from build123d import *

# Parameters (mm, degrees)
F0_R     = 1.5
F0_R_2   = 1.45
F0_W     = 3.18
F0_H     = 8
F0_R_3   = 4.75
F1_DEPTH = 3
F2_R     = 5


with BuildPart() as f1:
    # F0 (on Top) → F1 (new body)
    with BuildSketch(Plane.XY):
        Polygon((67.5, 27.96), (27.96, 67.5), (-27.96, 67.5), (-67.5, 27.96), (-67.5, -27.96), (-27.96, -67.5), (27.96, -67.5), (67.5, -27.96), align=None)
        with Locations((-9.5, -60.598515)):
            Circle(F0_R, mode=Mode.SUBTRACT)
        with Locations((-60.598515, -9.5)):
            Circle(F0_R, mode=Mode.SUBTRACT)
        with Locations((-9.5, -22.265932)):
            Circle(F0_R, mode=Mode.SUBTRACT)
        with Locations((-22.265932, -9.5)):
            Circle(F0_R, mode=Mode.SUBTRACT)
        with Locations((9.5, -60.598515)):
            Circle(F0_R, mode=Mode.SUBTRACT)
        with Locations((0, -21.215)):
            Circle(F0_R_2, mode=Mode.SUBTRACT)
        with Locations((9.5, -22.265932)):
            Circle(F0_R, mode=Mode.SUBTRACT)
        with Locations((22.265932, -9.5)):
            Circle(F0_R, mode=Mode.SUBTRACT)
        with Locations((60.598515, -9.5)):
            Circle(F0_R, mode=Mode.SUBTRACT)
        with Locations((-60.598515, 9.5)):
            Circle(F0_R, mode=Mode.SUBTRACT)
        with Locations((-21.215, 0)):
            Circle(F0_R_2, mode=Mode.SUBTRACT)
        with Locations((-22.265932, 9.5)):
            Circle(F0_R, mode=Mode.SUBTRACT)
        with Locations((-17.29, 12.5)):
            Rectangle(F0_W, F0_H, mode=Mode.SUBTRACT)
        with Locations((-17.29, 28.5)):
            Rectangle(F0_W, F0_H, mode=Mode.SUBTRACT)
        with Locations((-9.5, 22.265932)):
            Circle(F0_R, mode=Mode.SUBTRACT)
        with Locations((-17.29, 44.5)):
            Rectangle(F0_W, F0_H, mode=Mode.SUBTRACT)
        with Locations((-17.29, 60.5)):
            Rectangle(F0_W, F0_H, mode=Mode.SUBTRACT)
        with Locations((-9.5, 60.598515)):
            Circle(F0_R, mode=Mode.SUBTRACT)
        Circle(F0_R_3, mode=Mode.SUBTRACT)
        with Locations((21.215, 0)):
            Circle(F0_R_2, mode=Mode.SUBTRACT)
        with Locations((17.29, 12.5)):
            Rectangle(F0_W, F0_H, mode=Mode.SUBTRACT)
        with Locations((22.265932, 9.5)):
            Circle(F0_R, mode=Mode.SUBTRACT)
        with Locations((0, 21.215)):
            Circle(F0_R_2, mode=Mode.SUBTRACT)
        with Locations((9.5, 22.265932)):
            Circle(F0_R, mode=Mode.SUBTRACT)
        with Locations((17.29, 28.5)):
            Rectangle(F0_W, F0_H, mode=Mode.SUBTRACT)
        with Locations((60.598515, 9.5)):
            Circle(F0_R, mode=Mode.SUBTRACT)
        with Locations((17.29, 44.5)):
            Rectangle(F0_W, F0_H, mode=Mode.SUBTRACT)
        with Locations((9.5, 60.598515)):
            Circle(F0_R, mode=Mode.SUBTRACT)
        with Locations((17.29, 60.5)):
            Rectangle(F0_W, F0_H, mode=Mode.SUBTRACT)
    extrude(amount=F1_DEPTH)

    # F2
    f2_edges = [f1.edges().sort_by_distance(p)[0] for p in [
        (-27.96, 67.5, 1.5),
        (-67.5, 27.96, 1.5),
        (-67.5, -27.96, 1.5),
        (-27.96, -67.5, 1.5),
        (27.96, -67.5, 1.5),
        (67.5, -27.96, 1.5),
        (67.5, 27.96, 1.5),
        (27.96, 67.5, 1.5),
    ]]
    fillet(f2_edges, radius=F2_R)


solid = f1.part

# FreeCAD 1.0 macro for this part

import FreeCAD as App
import Part
import Sketcher

V = App.Vector


def edges_at(feature, points):
    """Names of the edges that pass closest to the given points."""
    edges = feature.Shape.Edges
    near = lambda p: min(range(len(edges)), key=lambda i: edges[i].distToShape(Part.Vertex(*p))[0])
    return sorted({f"Edge{near(p) + 1}" for p in points})


def add_polygon(sketch, points):
    """Adds a closed chain of lines whose ends are joined by coincident constraints."""
    first, n = sketch.GeometryCount, len(points)
    for a, b in zip(points, points[1:] + points[:1]):
        sketch.addGeometry(Part.LineSegment(App.Vector(*a, 0), App.Vector(*b, 0)), False)
    for i in range(n):
        sketch.addConstraint(Sketcher.Constraint("Coincident", first + i, 2, first + (i + 1) % n, 1))

doc = App.newDocument("Part")
body = doc.addObject("PartDesign::Body", "Body")

sketch1 = body.newObject("Sketcher::SketchObject", "Sketch")
sketch1.AttachmentSupport = (doc.getObject("XY_Plane"), [""])
sketch1.MapMode = "FlatFace"
add_polygon(sketch1, [(67.5, 27.96), (27.96, 67.5), (-27.96, 67.5), (-67.5, 27.96), (-67.5, -27.96), (-27.96, -67.5), (27.96, -67.5), (67.5, -27.96)])
sketch1.addGeometry(Part.Circle(V(-9.5, -60.598515, 0), V(0, 0, 1), 1.5), False)
sketch1.addGeometry(Part.Circle(V(-60.598515, -9.5, 0), V(0, 0, 1), 1.5), False)
sketch1.addGeometry(Part.Circle(V(-9.5, -22.265932, 0), V(0, 0, 1), 1.5), False)
sketch1.addGeometry(Part.Circle(V(-22.265932, -9.5, 0), V(0, 0, 1), 1.5), False)
sketch1.addGeometry(Part.Circle(V(-21.215, 0, 0), V(0, 0, 1), 1.45), False)
sketch1.addGeometry(Part.Circle(V(9.5, -60.598515, 0), V(0, 0, 1), 1.5), False)
sketch1.addGeometry(Part.Circle(V(0, -21.215, 0), V(0, 0, 1), 1.45), False)
sketch1.addGeometry(Part.Circle(V(9.5, -22.265932, 0), V(0, 0, 1), 1.5), False)
sketch1.addGeometry(Part.Circle(V(0, 0, 0), V(0, 0, 1), 4.75), False)
sketch1.addGeometry(Part.Circle(V(22.265932, -9.5, 0), V(0, 0, 1), 1.5), False)
sketch1.addGeometry(Part.Circle(V(21.215, 0, 0), V(0, 0, 1), 1.45), False)
sketch1.addGeometry(Part.Circle(V(60.598515, -9.5, 0), V(0, 0, 1), 1.5), False)
sketch1.addGeometry(Part.Circle(V(-60.598515, 9.5, 0), V(0, 0, 1), 1.5), False)
sketch1.addGeometry(Part.Circle(V(-22.265932, 9.5, 0), V(0, 0, 1), 1.5), False)
add_polygon(sketch1, [(-15.7, 8.5), (-18.88, 8.5), (-18.88, 16.5), (-15.7, 16.5)])
add_polygon(sketch1, [(-15.7, 24.5), (-18.88, 24.5), (-18.88, 32.5), (-15.7, 32.5)])
sketch1.addGeometry(Part.Circle(V(-9.5, 22.265932, 0), V(0, 0, 1), 1.5), False)
add_polygon(sketch1, [(-15.7, 40.5), (-18.88, 40.5), (-18.88, 48.5), (-15.7, 48.5)])
add_polygon(sketch1, [(-15.7, 56.5), (-18.88, 56.5), (-18.88, 64.5), (-15.7, 64.5)])
sketch1.addGeometry(Part.Circle(V(-9.5, 60.598515, 0), V(0, 0, 1), 1.5), False)
add_polygon(sketch1, [(18.88, 8.5), (15.7, 8.5), (15.7, 16.5), (18.88, 16.5)])
sketch1.addGeometry(Part.Circle(V(22.265932, 9.5, 0), V(0, 0, 1), 1.5), False)
sketch1.addGeometry(Part.Circle(V(0, 21.215, 0), V(0, 0, 1), 1.45), False)
sketch1.addGeometry(Part.Circle(V(9.5, 22.265932, 0), V(0, 0, 1), 1.5), False)
add_polygon(sketch1, [(18.88, 24.5), (15.7, 24.5), (15.7, 32.5), (18.88, 32.5)])
sketch1.addGeometry(Part.Circle(V(60.598515, 9.5, 0), V(0, 0, 1), 1.5), False)
add_polygon(sketch1, [(18.88, 40.5), (15.7, 40.5), (15.7, 48.5), (18.88, 48.5)])
sketch1.addGeometry(Part.Circle(V(9.5, 60.598515, 0), V(0, 0, 1), 1.5), False)
add_polygon(sketch1, [(18.88, 56.5), (15.7, 56.5), (15.7, 64.5), (18.88, 64.5)])
sketch1.addConstraint([
    Sketcher.Constraint("Horizontal", 1),
    Sketcher.Constraint("Vertical", 3),
    Sketcher.Constraint("Horizontal", 5),
    Sketcher.Constraint("Vertical", 7),
    Sketcher.Constraint("Horizontal", 22),
    Sketcher.Constraint("Vertical", 23),
    Sketcher.Constraint("Horizontal", 24),
    Sketcher.Constraint("Vertical", 25),
    Sketcher.Constraint("Horizontal", 26),
    Sketcher.Constraint("Vertical", 27),
    Sketcher.Constraint("Horizontal", 28),
    Sketcher.Constraint("Vertical", 29),
    Sketcher.Constraint("Horizontal", 31),
    Sketcher.Constraint("Vertical", 32),
    Sketcher.Constraint("Horizontal", 33),
    Sketcher.Constraint("Vertical", 34),
    Sketcher.Constraint("Horizontal", 35),
    Sketcher.Constraint("Vertical", 36),
    Sketcher.Constraint("Horizontal", 37),
    Sketcher.Constraint("Vertical", 38),
    Sketcher.Constraint("Horizontal", 40),
    Sketcher.Constraint("Vertical", 41),
    Sketcher.Constraint("Horizontal", 42),
    Sketcher.Constraint("Vertical", 43),
    Sketcher.Constraint("Horizontal", 47),
    Sketcher.Constraint("Vertical", 48),
    Sketcher.Constraint("Horizontal", 49),
    Sketcher.Constraint("Vertical", 50),
    Sketcher.Constraint("Horizontal", 52),
    Sketcher.Constraint("Vertical", 53),
    Sketcher.Constraint("Horizontal", 54),
    Sketcher.Constraint("Vertical", 55),
    Sketcher.Constraint("Horizontal", 57),
    Sketcher.Constraint("Vertical", 58),
    Sketcher.Constraint("Horizontal", 59),
    Sketcher.Constraint("Vertical", 60),
    Sketcher.Constraint("Coincident", 16, 3, -1, 1),
    Sketcher.Constraint("Equal", 8, 9),
    Sketcher.Constraint("Equal", 9, 10),
    Sketcher.Constraint("Equal", 10, 11),
    Sketcher.Constraint("Equal", 11, 13),
    Sketcher.Constraint("Equal", 12, 14),
    Sketcher.Constraint("Equal", 13, 15),
    Sketcher.Constraint("Equal", 15, 17),
    Sketcher.Constraint("Equal", 14, 18),
    Sketcher.Constraint("Equal", 17, 19),
    Sketcher.Constraint("Equal", 19, 20),
    Sketcher.Constraint("Equal", 20, 21),
    Sketcher.Constraint("Equal", 21, 30),
    Sketcher.Constraint("Equal", 30, 39),
    Sketcher.Constraint("Equal", 39, 44),
    Sketcher.Constraint("Equal", 18, 45),
    Sketcher.Constraint("Equal", 44, 46),
    Sketcher.Constraint("Equal", 46, 51),
    Sketcher.Constraint("Equal", 51, 56),
    Sketcher.Constraint("Symmetric", 12, 3, 18, 3, -1, 1),
    Sketcher.Constraint("Symmetric", 19, 3, 20, 3, -1, 1),
    Sketcher.Constraint("Symmetric", 17, 3, 21, 3, -1, 1),
    Sketcher.Constraint("Symmetric", 15, 3, 30, 3, -1, 1),
    Sketcher.Constraint("Symmetric", 13, 3, 39, 3, -1, 1),
    Sketcher.Constraint("Symmetric", 11, 3, 44, 3, -1, 1),
    Sketcher.Constraint("Symmetric", 14, 3, 45, 3, -1, 1),
    Sketcher.Constraint("Symmetric", 10, 3, 46, 3, -1, 1),
    Sketcher.Constraint("Symmetric", 9, 3, 51, 3, -1, 1),
    Sketcher.Constraint("Symmetric", 8, 3, 56, 3, -1, 1),
    Sketcher.Constraint("Symmetric", 0, 2, 4, 2, -1, 1),
    Sketcher.Constraint("Symmetric", 2, 2, 6, 2, -1, 1),
    Sketcher.Constraint("Symmetric", 8, 3, 13, 3, -2),
    Sketcher.Constraint("Symmetric", 10, 3, 15, 3, -2),
    Sketcher.Constraint("Symmetric", 11, 3, 17, 3, -2),
    Sketcher.Constraint("Symmetric", 9, 3, 19, 3, -2),
    Sketcher.Constraint("Symmetric", 25, 2, 40, 2, -2),
    Sketcher.Constraint("Symmetric", 23, 2, 42, 2, -2),
    Sketcher.Constraint("Symmetric", 29, 2, 47, 2, -2),
    Sketcher.Constraint("Symmetric", 27, 2, 49, 2, -2),
    Sketcher.Constraint("Symmetric", 34, 2, 52, 2, -2),
    Sketcher.Constraint("Symmetric", 32, 2, 54, 2, -2),
    Sketcher.Constraint("Symmetric", 38, 2, 57, 2, -2),
    Sketcher.Constraint("Symmetric", 36, 2, 59, 2, -2),
    Sketcher.Constraint("PointOnObject", 12, 3, -1),
    Sketcher.Constraint("PointOnObject", 14, 3, -2),
    Sketcher.Constraint("Perpendicular", 0, 2),
    Sketcher.Constraint("Perpendicular", 2, 4),
    Sketcher.Constraint("Perpendicular", 4, 6),
    Sketcher.Constraint("Horizontal", 9, 3, 11, 3),
    Sketcher.Constraint("Horizontal", 3, 2, 6, 2),
    Sketcher.Constraint("Vertical", 8, 3, 10, 3),
    Sketcher.Constraint("Vertical", 1, 2, 4, 2),
    Sketcher.Constraint("Vertical", 23, 2, 26, 2),
    Sketcher.Constraint("Vertical", 25, 2, 28, 2),
    Sketcher.Constraint("Vertical", 27, 2, 31, 2),
    Sketcher.Constraint("Vertical", 29, 2, 33, 2),
    Sketcher.Constraint("Vertical", 32, 2, 35, 2),
    Sketcher.Constraint("Vertical", 34, 2, 37, 2),
    Sketcher.Constraint("Equal", 5, 3),
    Sketcher.Constraint("Equal", 25, 27),
    Sketcher.Constraint("Equal", 29, 32),
    Sketcher.Constraint("Equal", 34, 36),
    Sketcher.Constraint("Diameter", 8, 3.0),
    Sketcher.Constraint("Diameter", 12, 2.9),
    Sketcher.Constraint("Diameter", 16, 9.5),
    Sketcher.Constraint("DistanceY", 23, 1, 23, 2, 8.0),
    Sketcher.Constraint("DistanceX", 1, 2, 1, 1, 55.92),
    Sketcher.Constraint("DistanceX", 22, 2, 22, 1, 3.18),
    Sketcher.Constraint("DistanceX", 8, 3, -1, 1, 9.5),
    Sketcher.Constraint("DistanceY", 9, 3, -1, 1, 9.5),
    Sketcher.Constraint("DistanceY", -1, 1, 0, 2, 67.5),
    Sketcher.Constraint("DistanceY", -1, 1, 22, 2, 8.5),
    Sketcher.Constraint("DistanceX", 24, 2, -1, 1, 15.7),
    Sketcher.Constraint("DistanceY", -1, 1, 26, 2, 24.5),
    Sketcher.Constraint("DistanceY", -1, 1, 31, 2, 40.5),
    Sketcher.Constraint("DistanceY", -1, 1, 35, 2, 56.5),
    Sketcher.Constraint("DistanceX", 12, 3, -1, 1, 21.215),
    Sketcher.Constraint("DistanceY", 14, 3, -1, 1, 21.215),
    Sketcher.Constraint("DistanceY", 10, 3, -1, 1, 22.265932),
    Sketcher.Constraint("DistanceX", 11, 3, -1, 1, 22.265932),
    Sketcher.Constraint("DistanceY", 8, 3, -1, 1, 60.598515),
    Sketcher.Constraint("DistanceX", 9, 3, -1, 1, 60.598515),
])
pad1 = body.newObject("PartDesign::Pad", "Pad")
pad1.Profile = sketch1
pad1.Length = 3
doc.recompute()

fillet = body.newObject("PartDesign::Fillet", "Fillet")
fillet.Base = (pad1, edges_at(pad1, [
    (-27.96, 67.5, 1.5),
    (-67.5, 27.96, 1.5),
    (-67.5, -27.96, 1.5),
    (-27.96, -67.5, 1.5),
    (27.96, -67.5, 1.5),
    (67.5, -27.96, 1.5),
    (67.5, 27.96, 1.5),
    (27.96, 67.5, 1.5),
]))
fillet.Radius = 5

doc.recompute()
